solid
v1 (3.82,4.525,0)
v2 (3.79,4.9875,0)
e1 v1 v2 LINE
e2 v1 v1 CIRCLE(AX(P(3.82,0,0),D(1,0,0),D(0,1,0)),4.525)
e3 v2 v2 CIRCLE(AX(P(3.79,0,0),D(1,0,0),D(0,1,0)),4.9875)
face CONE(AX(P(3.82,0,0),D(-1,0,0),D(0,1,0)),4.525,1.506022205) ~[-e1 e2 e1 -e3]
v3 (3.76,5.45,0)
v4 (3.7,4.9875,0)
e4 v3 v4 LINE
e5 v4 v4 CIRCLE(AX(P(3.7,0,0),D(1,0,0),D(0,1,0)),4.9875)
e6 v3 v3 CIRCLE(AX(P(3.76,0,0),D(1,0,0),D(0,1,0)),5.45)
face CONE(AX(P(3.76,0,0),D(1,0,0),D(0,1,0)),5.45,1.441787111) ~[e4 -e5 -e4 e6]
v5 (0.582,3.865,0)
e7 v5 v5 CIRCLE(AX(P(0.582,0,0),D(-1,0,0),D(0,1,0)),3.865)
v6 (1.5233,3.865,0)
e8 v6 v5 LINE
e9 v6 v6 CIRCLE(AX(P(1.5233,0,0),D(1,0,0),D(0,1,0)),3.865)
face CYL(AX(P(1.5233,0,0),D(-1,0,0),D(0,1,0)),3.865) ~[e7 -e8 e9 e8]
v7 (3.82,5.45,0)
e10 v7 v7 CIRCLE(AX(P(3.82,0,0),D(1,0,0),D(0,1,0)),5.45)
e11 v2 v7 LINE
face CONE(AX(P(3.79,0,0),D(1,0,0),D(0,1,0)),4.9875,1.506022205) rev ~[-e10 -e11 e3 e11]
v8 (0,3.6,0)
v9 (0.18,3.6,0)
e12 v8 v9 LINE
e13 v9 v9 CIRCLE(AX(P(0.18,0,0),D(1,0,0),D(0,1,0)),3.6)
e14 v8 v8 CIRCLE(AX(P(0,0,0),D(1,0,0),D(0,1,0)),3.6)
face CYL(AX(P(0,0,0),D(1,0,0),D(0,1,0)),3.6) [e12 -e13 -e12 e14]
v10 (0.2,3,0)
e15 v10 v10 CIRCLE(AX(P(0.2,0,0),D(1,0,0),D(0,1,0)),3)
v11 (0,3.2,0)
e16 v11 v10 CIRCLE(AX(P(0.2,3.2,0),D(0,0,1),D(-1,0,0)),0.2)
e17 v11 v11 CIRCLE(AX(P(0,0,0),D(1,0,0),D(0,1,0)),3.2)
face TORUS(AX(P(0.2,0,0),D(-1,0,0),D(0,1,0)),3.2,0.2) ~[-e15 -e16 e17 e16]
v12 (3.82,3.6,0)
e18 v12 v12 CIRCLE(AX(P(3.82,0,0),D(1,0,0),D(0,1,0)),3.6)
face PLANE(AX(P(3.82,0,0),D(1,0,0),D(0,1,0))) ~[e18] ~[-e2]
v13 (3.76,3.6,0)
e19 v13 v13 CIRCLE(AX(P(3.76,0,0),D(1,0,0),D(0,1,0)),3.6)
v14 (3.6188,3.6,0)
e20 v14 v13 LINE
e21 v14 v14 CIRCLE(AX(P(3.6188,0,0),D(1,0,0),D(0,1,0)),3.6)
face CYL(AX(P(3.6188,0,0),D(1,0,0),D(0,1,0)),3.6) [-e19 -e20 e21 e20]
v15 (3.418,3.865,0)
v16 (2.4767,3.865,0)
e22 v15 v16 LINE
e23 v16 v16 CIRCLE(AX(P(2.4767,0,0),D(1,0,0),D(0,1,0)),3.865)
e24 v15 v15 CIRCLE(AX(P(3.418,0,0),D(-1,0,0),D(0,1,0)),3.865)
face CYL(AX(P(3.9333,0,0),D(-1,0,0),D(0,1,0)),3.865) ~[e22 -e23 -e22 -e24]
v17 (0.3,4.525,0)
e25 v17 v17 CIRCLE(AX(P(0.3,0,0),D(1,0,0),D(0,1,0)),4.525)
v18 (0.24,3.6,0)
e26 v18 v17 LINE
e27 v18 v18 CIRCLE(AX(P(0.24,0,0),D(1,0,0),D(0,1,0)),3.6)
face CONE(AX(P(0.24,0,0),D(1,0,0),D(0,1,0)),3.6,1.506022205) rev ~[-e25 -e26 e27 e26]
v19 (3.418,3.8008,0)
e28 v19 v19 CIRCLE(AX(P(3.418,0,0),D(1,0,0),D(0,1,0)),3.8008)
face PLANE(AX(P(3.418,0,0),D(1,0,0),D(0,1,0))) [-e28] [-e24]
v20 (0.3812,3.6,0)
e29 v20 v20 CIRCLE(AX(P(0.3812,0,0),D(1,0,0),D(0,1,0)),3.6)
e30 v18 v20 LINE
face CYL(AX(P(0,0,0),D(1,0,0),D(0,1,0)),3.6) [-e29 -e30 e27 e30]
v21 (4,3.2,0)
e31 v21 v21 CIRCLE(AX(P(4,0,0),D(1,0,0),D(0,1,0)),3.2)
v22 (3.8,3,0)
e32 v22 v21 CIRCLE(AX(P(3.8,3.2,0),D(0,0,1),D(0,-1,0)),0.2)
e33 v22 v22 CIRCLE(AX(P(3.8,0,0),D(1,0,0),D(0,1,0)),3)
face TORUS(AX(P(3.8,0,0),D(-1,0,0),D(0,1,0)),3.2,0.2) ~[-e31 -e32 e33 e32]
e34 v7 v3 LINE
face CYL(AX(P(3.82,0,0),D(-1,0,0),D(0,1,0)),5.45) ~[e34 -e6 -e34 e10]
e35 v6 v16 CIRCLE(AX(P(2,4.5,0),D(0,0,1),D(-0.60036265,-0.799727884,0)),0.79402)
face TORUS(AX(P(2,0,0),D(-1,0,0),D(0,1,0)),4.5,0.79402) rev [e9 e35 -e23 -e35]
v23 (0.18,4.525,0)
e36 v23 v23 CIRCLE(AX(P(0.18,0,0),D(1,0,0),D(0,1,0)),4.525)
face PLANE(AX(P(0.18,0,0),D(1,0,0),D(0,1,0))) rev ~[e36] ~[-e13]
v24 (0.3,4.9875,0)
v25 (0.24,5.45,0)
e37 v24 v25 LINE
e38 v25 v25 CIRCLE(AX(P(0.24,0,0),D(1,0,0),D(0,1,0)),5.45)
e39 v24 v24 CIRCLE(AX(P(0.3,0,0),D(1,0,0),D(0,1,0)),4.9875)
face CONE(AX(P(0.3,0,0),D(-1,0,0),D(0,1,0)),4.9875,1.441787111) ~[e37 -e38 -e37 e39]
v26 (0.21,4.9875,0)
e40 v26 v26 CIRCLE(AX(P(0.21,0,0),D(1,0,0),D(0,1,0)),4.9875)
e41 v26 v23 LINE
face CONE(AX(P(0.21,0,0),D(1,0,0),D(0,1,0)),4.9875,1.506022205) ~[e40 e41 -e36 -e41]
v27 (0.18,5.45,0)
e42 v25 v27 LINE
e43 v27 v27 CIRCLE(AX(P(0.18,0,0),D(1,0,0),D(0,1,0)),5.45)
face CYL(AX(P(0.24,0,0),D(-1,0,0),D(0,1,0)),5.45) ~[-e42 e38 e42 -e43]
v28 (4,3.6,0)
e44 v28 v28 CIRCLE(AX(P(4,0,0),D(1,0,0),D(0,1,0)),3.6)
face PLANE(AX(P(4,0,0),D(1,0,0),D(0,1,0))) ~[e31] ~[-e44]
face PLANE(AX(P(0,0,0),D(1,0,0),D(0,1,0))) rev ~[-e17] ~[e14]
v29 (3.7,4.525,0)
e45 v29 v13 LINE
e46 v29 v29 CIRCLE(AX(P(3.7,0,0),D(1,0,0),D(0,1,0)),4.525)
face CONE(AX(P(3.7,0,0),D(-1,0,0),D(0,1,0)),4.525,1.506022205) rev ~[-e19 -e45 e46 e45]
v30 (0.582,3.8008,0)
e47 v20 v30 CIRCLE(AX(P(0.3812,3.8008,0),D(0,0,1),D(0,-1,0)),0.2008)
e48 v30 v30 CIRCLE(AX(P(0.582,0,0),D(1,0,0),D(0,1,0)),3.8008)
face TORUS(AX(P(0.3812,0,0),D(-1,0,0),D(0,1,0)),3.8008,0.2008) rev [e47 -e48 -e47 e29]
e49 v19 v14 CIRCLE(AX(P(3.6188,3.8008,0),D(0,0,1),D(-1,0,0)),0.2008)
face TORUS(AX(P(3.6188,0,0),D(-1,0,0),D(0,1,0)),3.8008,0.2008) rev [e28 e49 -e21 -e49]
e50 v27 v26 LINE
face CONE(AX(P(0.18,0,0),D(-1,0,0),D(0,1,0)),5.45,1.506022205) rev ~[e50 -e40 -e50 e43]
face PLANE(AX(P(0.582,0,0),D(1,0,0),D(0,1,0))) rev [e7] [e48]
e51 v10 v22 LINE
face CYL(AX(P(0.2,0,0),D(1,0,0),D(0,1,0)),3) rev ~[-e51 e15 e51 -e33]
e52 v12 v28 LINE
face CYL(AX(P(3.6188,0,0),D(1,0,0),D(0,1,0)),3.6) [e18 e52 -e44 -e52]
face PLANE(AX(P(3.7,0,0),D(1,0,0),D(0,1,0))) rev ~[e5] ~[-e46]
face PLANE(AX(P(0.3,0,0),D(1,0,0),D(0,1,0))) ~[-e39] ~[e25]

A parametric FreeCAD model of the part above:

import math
import FreeCAD as App
import Part
import Sketcher

doc = App.newDocument("Part")
body = doc.addObject("PartDesign::Body", "Body")

sketch1 = body.newObject("Sketcher::SketchObject", "Sketch")
sketch1.AttachmentSupport = (doc.getObject("XY_Plane"), [""])
sketch1.MapMode = "FlatFace"
sketch1.addGeometry([
    Part.ArcOfCircle(Part.Circle(App.Vector(0.07, 3.8, 0), App.Vector(0, 0, 1), 0.07), math.radians(90), math.radians(180)),
    Part.LineSegment(App.Vector(0, 3.8, 0), App.Vector(0, 3.2, 0)),
    Part.ArcOfCircle(Part.Circle(App.Vector(0.2, 3.2, 0), App.Vector(0, 0, 1), 0.2), math.radians(180), math.radians(270)),
    Part.LineSegment(App.Vector(0.2, 3, 0), App.Vector(3.8, 3, 0)),
    Part.ArcOfCircle(Part.Circle(App.Vector(3.8, 3.2, 0), App.Vector(0, 0, 1), 0.2), math.radians(-90), math.radians(0)),
    Part.LineSegment(App.Vector(4, 3.2, 0), App.Vector(4, 3.8, 0)),
    Part.ArcOfCircle(Part.Circle(App.Vector(3.93, 3.8, 0), App.Vector(0, 0, 1), 0.07), math.radians(0), math.radians(90)),
    Part.LineSegment(App.Vector(3.93, 3.87, 0), App.Vector(2.48, 3.87, 0)),
    Part.ArcOfCircle(Part.Circle(App.Vector(2, 4.5, 0), App.Vector(0, 0, 1), 0.79), math.radians(-127), math.radians(-53)),
    Part.LineSegment(App.Vector(1.52, 3.87, 0), App.Vector(0.07, 3.87, 0)),
], False)
sketch1.addConstraint([
    Sketcher.Constraint("Tangent", 0, 2, 1, 1),
    Sketcher.Constraint("Tangent", 1, 2, 2, 1),
    Sketcher.Constraint("Tangent", 2, 2, 3, 1),
    Sketcher.Constraint("Tangent", 3, 2, 4, 1),
    Sketcher.Constraint("Tangent", 4, 2, 5, 1),
    Sketcher.Constraint("Tangent", 5, 2, 6, 1),
    Sketcher.Constraint("Tangent", 6, 2, 7, 1),
    Sketcher.Constraint("Coincident", 7, 2, 8, 2),
    Sketcher.Constraint("Coincident", 8, 1, 9, 1),
    Sketcher.Constraint("Tangent", 9, 2, 0, 1),
    Sketcher.Constraint("Vertical", 1),
    Sketcher.Constraint("Horizontal", 3),
    Sketcher.Constraint("Vertical", 5),
    Sketcher.Constraint("Horizontal", 7),
    Sketcher.Constraint("Horizontal", 9),
    Sketcher.Constraint("Equal", 2, 4),
    Sketcher.Constraint("Equal", 0, 6),
    Sketcher.Constraint("PointOnObject", 0, 2, -2),
    Sketcher.Constraint("Horizontal", 0, 3, 6, 3),
    Sketcher.Constraint("Equal", 7, 9),
    Sketcher.Constraint("Radius", 2, 0.2),
    Sketcher.Constraint("DistanceX", 3, 1, 3, 2, 3.6),
    Sketcher.Constraint("DistanceY", -1, 1, 2, 2, 3.0),
    Sketcher.Constraint("Radius", 8, 0.794),
    Sketcher.Constraint("DistanceY", -1, 1, 8, 3, 4.5),
    Sketcher.Constraint("Radius", 0, 0.0667),
    Sketcher.Constraint("DistanceX", 7, 2, 7, 1, 1.4566),
])
revolution = body.newObject("PartDesign::Revolution", "Revolution")
revolution.Profile = sketch1
revolution.ReferenceAxis = (sketch1, ["H_Axis"])
revolution.Angle = 360

sketch2 = body.newObject("Sketcher::SketchObject", "Sketch001")
sketch2.AttachmentSupport = (doc.getObject("XY_Plane"), [""])
sketch2.MapMode = "FlatFace"
sketch2.addGeometry([
    Part.LineSegment(App.Vector(4, 5.85, 0), App.Vector(0, 5.85, 0)),
    Part.LineSegment(App.Vector(0, 5.85, 0), App.Vector(0, 3.6, 0)),
    Part.LineSegment(App.Vector(0, 3.6, 0), App.Vector(0.38, 3.6, 0)),
    Part.ArcOfCircle(Part.Circle(App.Vector(0.38, 3.8, 0), App.Vector(0, 0, 1), 0.2), math.radians(-90), math.radians(0)),
    Part.LineSegment(App.Vector(0.58, 3.8, 0), App.Vector(0.58, 5.37, 0)),
    Part.LineSegment(App.Vector(0.58, 5.37, 0), App.Vector(3.42, 5.37, 0)),
    Part.LineSegment(App.Vector(3.42, 5.37, 0), App.Vector(3.42, 3.8, 0)),
    Part.ArcOfCircle(Part.Circle(App.Vector(3.62, 3.8, 0), App.Vector(0, 0, 1), 0.2), math.radians(180), math.radians(270)),
    Part.LineSegment(App.Vector(3.62, 3.6, 0), App.Vector(4, 3.6, 0)),
    Part.LineSegment(App.Vector(4, 3.6, 0), App.Vector(4, 5.85, 0)),
], False)
sketch2.addConstraint([
    Sketcher.Constraint("Coincident", 0, 2, 1, 1),
    Sketcher.Constraint("Coincident", 1, 2, 2, 1),
    Sketcher.Constraint("Tangent", 2, 2, 3, 1),
    Sketcher.Constraint("Tangent", 3, 2, 4, 1),
    Sketcher.Constraint("Coincident", 4, 2, 5, 1),
    Sketcher.Constraint("Coincident", 5, 2, 6, 1),
    Sketcher.Constraint("Tangent", 6, 2, 7, 1),
    Sketcher.Constraint("Tangent", 7, 2, 8, 1),
    Sketcher.Constraint("Coincident", 8, 2, 9, 1),
    Sketcher.Constraint("Coincident", 9, 2, 0, 1),
    Sketcher.Constraint("Horizontal", 0),
    Sketcher.Constraint("Vertical", 1),
    Sketcher.Constraint("Horizontal", 2),
    Sketcher.Constraint("Vertical", 4),
    Sketcher.Constraint("Horizontal", 5),
    Sketcher.Constraint("Vertical", 6),
    Sketcher.Constraint("Horizontal", 8),
    Sketcher.Constraint("Vertical", 9),
    Sketcher.Constraint("Equal", 3, 7),
    Sketcher.Constraint("PointOnObject", 0, 2, -2),
    Sketcher.Constraint("Horizontal", 3, 3, 7, 3),
    Sketcher.Constraint("Equal", 2, 8),
    Sketcher.Constraint("DistanceX", 0, 2, 0, 1, 4.0),
    Sketcher.Constraint("DistanceY", 1, 2, 1, 1, 2.25),
    Sketcher.Constraint("DistanceY", -1, 1, 1, 2, 3.6),
    Sketcher.Constraint("Radius", 3, 0.2008),
    Sketcher.Constraint("DistanceX", 5, 1, 5, 2, 2.836),
    Sketcher.Constraint("DistanceY", 4, 1, 4, 2, 1.5672),
])
groove = body.newObject("PartDesign::Groove", "Groove")
groove.Profile = sketch2
groove.ReferenceAxis = (sketch2, ["H_Axis"])
groove.Angle = 360

sketch3 = body.newObject("Sketcher::SketchObject", "Sketch002")
sketch3.AttachmentSupport = (doc.getObject("XY_Plane"), [""])
sketch3.MapMode = "FlatFace"
sketch3.addGeometry([
    Part.LineSegment(App.Vector(0.24, 5.45, 0), App.Vector(0.18, 5.45, 0)),
    Part.LineSegment(App.Vector(0.18, 5.45, 0), App.Vector(0.21, 4.99, 0)),
    Part.LineSegment(App.Vector(0.21, 4.99, 0), App.Vector(0.18, 4.53, 0)),
    Part.LineSegment(App.Vector(0.18, 4.53, 0), App.Vector(0.18, 3.6, 0)),
    Part.LineSegment(App.Vector(0.18, 3.6, 0), App.Vector(0.24, 3.6, 0)),
    Part.LineSegment(App.Vector(0.24, 3.6, 0), App.Vector(0.3, 4.53, 0)),
    Part.LineSegment(App.Vector(0.3, 4.53, 0), App.Vector(0.3, 4.99, 0)),
    Part.LineSegment(App.Vector(0.3, 4.99, 0), App.Vector(0.24, 5.45, 0)),
], False)
sketch3.addConstraint([
    Sketcher.Constraint("Coincident", 0, 2, 1, 1),
    Sketcher.Constraint("Coincident", 1, 2, 2, 1),
    Sketcher.Constraint("Coincident", 2, 2, 3, 1),
    Sketcher.Constraint("Coincident", 3, 2, 4, 1),
    Sketcher.Constraint("Coincident", 4, 2, 5, 1),
    Sketcher.Constraint("Coincident", 5, 2, 6, 1),
    Sketcher.Constraint("Coincident", 6, 2, 7, 1),
    Sketcher.Constraint("Coincident", 7, 2, 0, 1),
    Sketcher.Constraint("Horizontal", 0),
    Sketcher.Constraint("Vertical", 3),
    Sketcher.Constraint("Horizontal", 4),
    Sketcher.Constraint("Vertical", 6),
    Sketcher.Constraint("Parallel", 2, 5),
    Sketcher.Constraint("Horizontal", 2, 2, 5, 2),
    Sketcher.Constraint("Horizontal", 1, 2, 6, 2),
    Sketcher.Constraint("Vertical", 0, 2, 2, 2),
    Sketcher.Constraint("Vertical", 4, 2, 7, 2),
    Sketcher.Constraint("Equal", 1, 2),
    Sketcher.Constraint("DistanceX", 0, 2, 0, 1, 0.06),
    Sketcher.Constraint("DistanceY", -1, 1, 3, 2, 3.6),
    Sketcher.Constraint("DistanceX", -1, 1, 5, 2, 0.3),
    Sketcher.Constraint("DistanceY", 3, 2, 3, 1, 0.925),
    Sketcher.Constraint("DistanceX", -1, 1, 0, 2, 0.18),
    Sketcher.Constraint("DistanceY", -1, 1, 0, 2, 5.45),
])
revolution2 = body.newObject("PartDesign::Revolution", "Revolution001")
revolution2.Profile = sketch3
revolution2.ReferenceAxis = (sketch3, ["H_Axis"])
revolution2.Angle = 360

sketch4 = body.newObject("Sketcher::SketchObject", "Sketch003")
sketch4.AttachmentSupport = (doc.getObject("XY_Plane"), [""])
sketch4.MapMode = "FlatFace"
sketch4.addGeometry([
    Part.LineSegment(App.Vector(3.7, 4.99, 0), App.Vector(3.7, 4.53, 0)),
    Part.LineSegment(App.Vector(3.7, 4.53, 0), App.Vector(3.76, 3.6, 0)),
    Part.LineSegment(App.Vector(3.76, 3.6, 0), App.Vector(3.82, 3.6, 0)),
    Part.LineSegment(App.Vector(3.82, 3.6, 0), App.Vector(3.82, 4.53, 0)),
    Part.LineSegment(App.Vector(3.82, 4.53, 0), App.Vector(3.79, 4.99, 0)),
    Part.LineSegment(App.Vector(3.79, 4.99, 0), App.Vector(3.82, 5.45, 0)),
    Part.LineSegment(App.Vector(3.82, 5.45, 0), App.Vector(3.76, 5.45, 0)),
    Part.LineSegment(App.Vector(3.76, 5.45, 0), App.Vector(3.7, 4.99, 0)),
], False)
sketch4.addConstraint([
    Sketcher.Constraint("Coincident", 0, 2, 1, 1),
    Sketcher.Constraint("Coincident", 1, 2, 2, 1),
    Sketcher.Constraint("Coincident", 2, 2, 3, 1),
    Sketcher.Constraint("Coincident", 3, 2, 4, 1),
    Sketcher.Constraint("Coincident", 4, 2, 5, 1),
    Sketcher.Constraint("Coincident", 5, 2, 6, 1),
    Sketcher.Constraint("Coincident", 6, 2, 7, 1),
    Sketcher.Constraint("Coincident", 7, 2, 0, 1),
    Sketcher.Constraint("Vertical", 0),
    Sketcher.Constraint("Horizontal", 2),
    Sketcher.Constraint("Vertical", 3),
    Sketcher.Constraint("Horizontal", 6),
    Sketcher.Constraint("Parallel", 1, 4),
    Sketcher.Constraint("Horizontal", 0, 2, 3, 2),
    Sketcher.Constraint("Horizontal", 4, 2, 7, 2),
    Sketcher.Constraint("Vertical", 3, 2, 5, 2),
    Sketcher.Constraint("Vertical", 1, 2, 6, 2),
    Sketcher.Constraint("Equal", 4, 5),
    Sketcher.Constraint("DistanceX", 2, 1, 2, 2, 0.06),
    Sketcher.Constraint("DistanceX", -1, 1, 0, 2, 3.7),
    Sketcher.Constraint("DistanceY", -1, 1, 1, 2, 3.6),
    Sketcher.Constraint("DistanceY", 3, 1, 3, 2, 0.925),
    Sketcher.Constraint("DistanceX", -1, 1, 1, 2, 3.76),
    Sketcher.Constraint("DistanceX", -1, 1, 4, 2, 3.79),
])
revolution3 = body.newObject("PartDesign::Revolution", "Revolution002")
revolution3.Profile = sketch4
revolution3.ReferenceAxis = (sketch4, ["H_Axis"])
revolution3.Angle = 360

doc.recompute()
